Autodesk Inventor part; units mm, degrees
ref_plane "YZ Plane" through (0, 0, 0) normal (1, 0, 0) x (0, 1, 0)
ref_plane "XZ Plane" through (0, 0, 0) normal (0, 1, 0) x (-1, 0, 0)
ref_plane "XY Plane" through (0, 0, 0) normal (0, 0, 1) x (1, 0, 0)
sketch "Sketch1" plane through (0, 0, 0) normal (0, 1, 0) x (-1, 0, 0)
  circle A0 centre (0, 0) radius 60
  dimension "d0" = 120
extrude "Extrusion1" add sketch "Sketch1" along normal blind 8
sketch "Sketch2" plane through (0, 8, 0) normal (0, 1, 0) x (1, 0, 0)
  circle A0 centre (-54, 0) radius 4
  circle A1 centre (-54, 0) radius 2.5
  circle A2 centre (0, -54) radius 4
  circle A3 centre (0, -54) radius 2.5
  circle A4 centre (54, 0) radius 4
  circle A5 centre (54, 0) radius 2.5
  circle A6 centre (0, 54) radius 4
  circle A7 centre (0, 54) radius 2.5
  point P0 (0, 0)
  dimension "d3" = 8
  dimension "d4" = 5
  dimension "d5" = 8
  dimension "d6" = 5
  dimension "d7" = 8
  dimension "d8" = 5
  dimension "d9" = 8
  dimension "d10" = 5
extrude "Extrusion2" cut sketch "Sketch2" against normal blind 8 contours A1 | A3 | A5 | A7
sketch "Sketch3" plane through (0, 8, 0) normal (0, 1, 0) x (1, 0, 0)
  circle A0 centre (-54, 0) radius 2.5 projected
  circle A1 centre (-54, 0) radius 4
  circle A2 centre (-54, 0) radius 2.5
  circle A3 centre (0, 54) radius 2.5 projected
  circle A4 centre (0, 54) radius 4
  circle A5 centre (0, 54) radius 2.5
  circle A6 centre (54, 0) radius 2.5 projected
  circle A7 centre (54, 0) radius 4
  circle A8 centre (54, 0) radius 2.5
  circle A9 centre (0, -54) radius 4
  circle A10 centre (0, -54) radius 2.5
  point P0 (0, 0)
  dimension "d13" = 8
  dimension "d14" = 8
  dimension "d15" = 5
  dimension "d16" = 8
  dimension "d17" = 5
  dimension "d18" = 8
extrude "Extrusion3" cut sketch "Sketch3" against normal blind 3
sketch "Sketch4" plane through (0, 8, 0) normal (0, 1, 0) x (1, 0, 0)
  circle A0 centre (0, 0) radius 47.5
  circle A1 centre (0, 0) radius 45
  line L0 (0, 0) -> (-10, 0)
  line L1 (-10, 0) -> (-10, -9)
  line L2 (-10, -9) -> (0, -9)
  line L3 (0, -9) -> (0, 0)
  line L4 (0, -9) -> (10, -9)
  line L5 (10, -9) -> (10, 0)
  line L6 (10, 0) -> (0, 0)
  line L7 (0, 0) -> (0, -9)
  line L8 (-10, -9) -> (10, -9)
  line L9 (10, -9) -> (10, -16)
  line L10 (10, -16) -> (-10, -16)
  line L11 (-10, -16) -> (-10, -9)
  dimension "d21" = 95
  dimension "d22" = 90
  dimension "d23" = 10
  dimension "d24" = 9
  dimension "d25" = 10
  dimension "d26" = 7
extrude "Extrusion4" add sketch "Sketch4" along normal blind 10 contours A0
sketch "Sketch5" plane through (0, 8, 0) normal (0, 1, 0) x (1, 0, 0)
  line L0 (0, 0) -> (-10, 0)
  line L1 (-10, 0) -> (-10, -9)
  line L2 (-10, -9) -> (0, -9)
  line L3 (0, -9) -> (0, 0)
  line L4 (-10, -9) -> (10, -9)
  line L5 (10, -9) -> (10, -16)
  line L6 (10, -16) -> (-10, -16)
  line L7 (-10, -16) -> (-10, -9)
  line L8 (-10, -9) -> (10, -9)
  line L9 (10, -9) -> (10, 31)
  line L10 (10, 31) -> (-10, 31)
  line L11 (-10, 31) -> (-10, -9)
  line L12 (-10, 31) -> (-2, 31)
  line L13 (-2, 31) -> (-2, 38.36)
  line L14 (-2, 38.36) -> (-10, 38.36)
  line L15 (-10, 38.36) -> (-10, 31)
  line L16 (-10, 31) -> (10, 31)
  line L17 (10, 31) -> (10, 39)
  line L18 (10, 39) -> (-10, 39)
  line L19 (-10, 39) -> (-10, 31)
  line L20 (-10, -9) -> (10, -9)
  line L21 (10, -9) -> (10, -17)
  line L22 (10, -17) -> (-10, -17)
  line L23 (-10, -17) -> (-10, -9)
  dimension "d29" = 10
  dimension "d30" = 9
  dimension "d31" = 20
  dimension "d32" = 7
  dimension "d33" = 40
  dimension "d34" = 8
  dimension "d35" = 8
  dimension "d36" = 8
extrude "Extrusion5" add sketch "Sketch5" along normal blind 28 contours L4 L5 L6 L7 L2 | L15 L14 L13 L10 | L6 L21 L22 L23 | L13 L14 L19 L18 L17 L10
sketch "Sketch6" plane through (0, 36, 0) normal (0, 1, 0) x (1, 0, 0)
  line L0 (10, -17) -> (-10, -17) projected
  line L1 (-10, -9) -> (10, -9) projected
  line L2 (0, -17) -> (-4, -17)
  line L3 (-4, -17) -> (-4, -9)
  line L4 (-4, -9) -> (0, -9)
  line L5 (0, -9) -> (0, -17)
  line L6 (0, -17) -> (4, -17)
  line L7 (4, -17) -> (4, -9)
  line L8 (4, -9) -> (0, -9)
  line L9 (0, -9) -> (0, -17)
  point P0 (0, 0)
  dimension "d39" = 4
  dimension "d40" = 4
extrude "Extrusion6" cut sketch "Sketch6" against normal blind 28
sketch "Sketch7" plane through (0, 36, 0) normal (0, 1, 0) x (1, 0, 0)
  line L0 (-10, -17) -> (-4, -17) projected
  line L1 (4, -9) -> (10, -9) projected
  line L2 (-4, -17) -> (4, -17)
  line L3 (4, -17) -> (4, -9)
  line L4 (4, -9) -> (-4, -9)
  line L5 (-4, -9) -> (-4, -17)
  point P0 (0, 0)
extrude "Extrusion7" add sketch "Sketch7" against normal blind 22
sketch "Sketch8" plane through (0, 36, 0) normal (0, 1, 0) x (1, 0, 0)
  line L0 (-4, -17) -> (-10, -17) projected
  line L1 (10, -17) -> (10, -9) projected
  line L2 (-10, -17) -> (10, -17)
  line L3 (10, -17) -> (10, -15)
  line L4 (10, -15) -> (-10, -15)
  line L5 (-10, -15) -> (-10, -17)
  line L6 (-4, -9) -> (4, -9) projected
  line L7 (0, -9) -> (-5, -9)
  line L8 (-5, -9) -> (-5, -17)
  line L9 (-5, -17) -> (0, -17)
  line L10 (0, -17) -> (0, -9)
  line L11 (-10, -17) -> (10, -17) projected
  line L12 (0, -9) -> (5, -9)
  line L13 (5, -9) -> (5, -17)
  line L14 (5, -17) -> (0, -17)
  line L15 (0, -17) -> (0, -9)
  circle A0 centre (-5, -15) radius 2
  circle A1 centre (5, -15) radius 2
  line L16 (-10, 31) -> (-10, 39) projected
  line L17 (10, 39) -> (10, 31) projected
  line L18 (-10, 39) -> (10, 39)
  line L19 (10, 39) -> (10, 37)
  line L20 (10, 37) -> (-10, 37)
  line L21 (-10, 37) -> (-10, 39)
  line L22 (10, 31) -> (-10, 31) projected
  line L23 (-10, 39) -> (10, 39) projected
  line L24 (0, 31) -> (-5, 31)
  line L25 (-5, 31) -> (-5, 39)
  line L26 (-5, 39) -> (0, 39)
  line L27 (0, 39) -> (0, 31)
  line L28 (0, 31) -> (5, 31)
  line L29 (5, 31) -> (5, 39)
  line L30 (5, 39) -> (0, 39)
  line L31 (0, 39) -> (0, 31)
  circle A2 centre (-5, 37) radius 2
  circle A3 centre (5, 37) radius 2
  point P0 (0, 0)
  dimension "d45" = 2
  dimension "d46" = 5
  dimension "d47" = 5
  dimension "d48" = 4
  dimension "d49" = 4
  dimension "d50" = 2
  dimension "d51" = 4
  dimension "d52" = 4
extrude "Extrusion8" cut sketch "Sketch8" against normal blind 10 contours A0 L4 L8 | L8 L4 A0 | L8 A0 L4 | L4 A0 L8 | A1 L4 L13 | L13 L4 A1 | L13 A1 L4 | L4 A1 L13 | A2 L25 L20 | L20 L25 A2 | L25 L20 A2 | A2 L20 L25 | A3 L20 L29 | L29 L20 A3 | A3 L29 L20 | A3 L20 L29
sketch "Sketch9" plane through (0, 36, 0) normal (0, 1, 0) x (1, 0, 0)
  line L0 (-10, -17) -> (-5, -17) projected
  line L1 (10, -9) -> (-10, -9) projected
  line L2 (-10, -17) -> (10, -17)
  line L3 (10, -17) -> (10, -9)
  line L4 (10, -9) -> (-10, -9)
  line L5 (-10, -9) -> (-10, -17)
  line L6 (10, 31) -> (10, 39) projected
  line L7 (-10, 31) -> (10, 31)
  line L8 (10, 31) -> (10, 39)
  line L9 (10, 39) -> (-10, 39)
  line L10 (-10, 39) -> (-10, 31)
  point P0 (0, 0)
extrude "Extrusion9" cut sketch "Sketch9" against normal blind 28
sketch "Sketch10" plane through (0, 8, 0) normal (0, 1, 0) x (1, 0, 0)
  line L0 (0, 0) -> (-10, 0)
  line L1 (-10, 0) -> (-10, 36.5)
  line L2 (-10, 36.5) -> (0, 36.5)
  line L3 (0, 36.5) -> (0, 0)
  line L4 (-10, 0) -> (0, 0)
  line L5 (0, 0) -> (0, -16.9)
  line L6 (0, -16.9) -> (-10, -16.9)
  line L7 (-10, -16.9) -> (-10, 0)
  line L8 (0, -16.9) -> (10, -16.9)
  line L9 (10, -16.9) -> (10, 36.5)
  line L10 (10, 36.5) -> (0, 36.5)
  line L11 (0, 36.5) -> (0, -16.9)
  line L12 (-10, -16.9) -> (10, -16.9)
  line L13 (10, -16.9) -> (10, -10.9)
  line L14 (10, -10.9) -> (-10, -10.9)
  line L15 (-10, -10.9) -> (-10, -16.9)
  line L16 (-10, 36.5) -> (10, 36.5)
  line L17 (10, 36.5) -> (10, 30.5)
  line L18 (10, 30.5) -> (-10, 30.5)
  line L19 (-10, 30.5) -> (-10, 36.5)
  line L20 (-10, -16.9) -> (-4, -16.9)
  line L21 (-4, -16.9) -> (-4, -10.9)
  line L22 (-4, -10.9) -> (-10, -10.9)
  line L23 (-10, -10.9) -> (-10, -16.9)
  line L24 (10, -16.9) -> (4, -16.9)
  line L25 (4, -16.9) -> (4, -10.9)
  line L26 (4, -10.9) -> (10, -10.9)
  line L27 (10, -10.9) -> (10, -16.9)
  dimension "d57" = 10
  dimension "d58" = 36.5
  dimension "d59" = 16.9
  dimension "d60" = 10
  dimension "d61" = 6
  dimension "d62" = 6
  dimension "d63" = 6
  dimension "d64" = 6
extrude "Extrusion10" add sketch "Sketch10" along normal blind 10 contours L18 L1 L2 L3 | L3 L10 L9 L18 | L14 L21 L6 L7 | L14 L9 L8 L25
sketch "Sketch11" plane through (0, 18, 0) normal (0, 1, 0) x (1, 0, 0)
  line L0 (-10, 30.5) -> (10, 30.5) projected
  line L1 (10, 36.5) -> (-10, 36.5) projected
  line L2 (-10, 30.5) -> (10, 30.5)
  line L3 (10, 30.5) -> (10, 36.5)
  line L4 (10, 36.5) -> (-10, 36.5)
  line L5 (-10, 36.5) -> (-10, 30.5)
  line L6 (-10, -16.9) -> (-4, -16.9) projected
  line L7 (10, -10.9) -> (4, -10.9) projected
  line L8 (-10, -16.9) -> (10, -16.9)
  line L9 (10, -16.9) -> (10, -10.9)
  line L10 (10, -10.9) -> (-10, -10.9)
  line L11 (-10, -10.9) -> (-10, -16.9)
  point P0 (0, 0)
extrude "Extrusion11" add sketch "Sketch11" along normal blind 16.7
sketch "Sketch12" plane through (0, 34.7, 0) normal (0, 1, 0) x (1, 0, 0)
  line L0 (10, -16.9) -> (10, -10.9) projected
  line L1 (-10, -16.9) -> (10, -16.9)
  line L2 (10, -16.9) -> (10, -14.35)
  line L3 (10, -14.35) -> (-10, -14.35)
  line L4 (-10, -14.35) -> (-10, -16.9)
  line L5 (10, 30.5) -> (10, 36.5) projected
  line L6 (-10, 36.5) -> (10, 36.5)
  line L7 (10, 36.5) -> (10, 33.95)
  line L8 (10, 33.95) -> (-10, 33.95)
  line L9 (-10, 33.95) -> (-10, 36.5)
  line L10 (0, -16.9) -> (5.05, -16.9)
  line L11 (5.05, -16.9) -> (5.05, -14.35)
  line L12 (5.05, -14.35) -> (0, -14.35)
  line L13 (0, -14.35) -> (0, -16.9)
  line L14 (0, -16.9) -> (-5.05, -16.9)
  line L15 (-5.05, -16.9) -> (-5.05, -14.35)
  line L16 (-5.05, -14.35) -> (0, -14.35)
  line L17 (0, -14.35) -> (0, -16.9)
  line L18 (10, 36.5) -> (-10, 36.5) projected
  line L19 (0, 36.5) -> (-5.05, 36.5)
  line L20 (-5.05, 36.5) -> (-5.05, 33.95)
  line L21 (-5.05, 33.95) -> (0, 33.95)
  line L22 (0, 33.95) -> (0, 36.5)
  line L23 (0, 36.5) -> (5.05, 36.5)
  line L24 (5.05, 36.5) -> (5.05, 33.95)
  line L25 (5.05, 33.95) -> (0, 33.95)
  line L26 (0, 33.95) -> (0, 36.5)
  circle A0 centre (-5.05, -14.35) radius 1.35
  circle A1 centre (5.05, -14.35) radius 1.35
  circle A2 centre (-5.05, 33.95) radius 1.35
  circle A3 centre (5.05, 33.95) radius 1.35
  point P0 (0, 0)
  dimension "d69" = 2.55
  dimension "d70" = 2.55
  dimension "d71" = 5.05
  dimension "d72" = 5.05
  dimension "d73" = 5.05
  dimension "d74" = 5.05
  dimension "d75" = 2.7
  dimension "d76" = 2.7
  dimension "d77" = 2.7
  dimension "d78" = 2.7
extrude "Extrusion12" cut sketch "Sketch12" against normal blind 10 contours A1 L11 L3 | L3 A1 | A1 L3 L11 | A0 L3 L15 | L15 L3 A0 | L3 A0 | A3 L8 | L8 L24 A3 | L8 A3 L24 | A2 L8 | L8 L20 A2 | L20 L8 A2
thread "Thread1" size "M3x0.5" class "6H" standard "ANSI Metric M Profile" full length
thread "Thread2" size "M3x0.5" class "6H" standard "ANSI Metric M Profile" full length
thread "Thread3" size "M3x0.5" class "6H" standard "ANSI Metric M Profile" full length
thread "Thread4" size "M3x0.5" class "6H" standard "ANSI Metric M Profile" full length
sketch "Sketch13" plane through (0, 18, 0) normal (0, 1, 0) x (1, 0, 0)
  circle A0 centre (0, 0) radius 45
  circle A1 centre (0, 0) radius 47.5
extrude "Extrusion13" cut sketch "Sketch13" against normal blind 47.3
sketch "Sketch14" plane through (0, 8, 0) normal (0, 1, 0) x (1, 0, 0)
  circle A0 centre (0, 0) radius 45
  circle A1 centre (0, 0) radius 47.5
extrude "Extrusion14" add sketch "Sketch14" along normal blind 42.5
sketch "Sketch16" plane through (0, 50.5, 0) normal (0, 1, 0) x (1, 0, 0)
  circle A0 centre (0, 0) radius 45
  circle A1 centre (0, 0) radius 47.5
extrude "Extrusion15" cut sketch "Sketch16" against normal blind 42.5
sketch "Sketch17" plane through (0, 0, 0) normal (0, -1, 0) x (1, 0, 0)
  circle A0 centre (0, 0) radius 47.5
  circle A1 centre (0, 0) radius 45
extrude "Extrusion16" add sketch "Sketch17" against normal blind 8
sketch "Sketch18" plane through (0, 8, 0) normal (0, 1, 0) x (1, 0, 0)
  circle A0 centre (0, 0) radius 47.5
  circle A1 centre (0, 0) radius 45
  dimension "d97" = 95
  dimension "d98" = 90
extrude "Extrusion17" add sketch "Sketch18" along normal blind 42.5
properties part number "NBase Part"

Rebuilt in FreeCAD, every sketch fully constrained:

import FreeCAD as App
import Part
import Sketcher
Q = App.Units.Quantity

doc = App.newDocument("Part")
params = doc.addObject("Spreadsheet::Sheet", "Params")
for row, (alias, value) in enumerate([
    ("sketch1_diameter", "120 mm"),
    ("pad1_length", "8 mm"),
    ("sketch2_diameter", "5 mm"),
    ("pocket1_length", "8 mm"),
    ("sketch3_diameter", "8 mm"),
    ("sketch3_diameter2", "5 mm"),
    ("pocket2_length", "3 mm"),
    ("sketch4_diameter", "95 mm"),
    ("sketch4_diameter2", "90 mm"),
    ("pad2_length", "10 mm"),
    ("sketch5_width", "20 mm"),
    ("sketch5_height", "8 mm"),
    ("pad3_length", "28 mm"),
    ("pocket3_length", "28 mm"),
    ("sketch7_width", "8 mm"),
    ("pad4_length", "22 mm"),
    ("sketch8_diameter", "4 mm"),
    ("pocket4_length", "10 mm"),
    ("sketch9_width", "20 mm"),
    ("sketch9_height", "8 mm"),
    ("pocket5_length", "28 mm"),
    ("sketch10_width", "6 mm"),
    ("pad5_length", "10 mm"),
    ("sketch11_width", "20 mm"),
    ("sketch11_height", "6 mm"),
    ("pad6_length", "16.7 mm"),
    ("sketch12_diameter", "2.7 mm"),
    ("pocket6_length", "10 mm"),
    ("sketch13_diameter", "95 mm"),
    ("sketch13_diameter2", "90 mm"),
    ("pocket7_length", "47.3 mm"),
    ("sketch14_diameter", "95 mm"),
    ("sketch14_diameter2", "90 mm"),
    ("pad7_length", "42.5 mm"),
    ("sketch15_diameter", "95 mm"),
    ("sketch15_diameter2", "90 mm"),
    ("pocket8_length", "42.5 mm"),
    ("sketch16_diameter", "95 mm"),
    ("sketch16_diameter2", "90 mm"),
    ("pad8_length", "8 mm"),
    ("sketch17_diameter", "95 mm"),
    ("sketch17_diameter2", "90 mm"),
    ("pad9_length", "42.5 mm"),
], start=1):
    params.set(f"A{row}", alias)
    params.set(f"B{row}", "=" + value)
    params.setAlias(f"B{row}", alias)

body = doc.addObject("PartDesign::Body", "Body")
body.AllowCompound = True

sketch1 = body.newObject("Sketcher::SketchObject", "Sketch")
sketch1.AttachmentSupport = (doc.getObject("XZ_Plane"), [""])
sketch1.MapMode = "FlatFace"
sketch1.addGeometry(Part.Circle(App.Vector(0, 0, 0), App.Vector(0, 0, 1), 60), False)
sketch1.addConstraint(Sketcher.Constraint("Coincident", 0, 3, -1, 1))
sketch1.addConstraint(Sketcher.Constraint("Diameter", 0, Q("120 mm")))
sketch1.setExpression("Constraints[1]", "Params.sketch1_diameter")
pad1 = body.newObject("PartDesign::Pad", "Pad")
pad1.Profile = sketch1
pad1.setExpression("Length", "Params.pad1_length")
pad1.Reversed = True

sketch2 = body.newObject("Sketcher::SketchObject", "Sketch001")
sketch2.AttachmentSupport = (doc.getObject("XZ_Plane"), [""])
sketch2.MapMode = "FlatFace"
sketch2.AttachmentOffset = App.Placement(App.Vector(0, 0, -8), App.Rotation())
sketch2.addGeometry(Part.Circle(App.Vector(-54, 0, 0), App.Vector(0, 0, 1), 2.5), False)
sketch2.addGeometry(Part.Circle(App.Vector(0, 54, 0), App.Vector(0, 0, 1), 2.5), False)
sketch2.addGeometry(Part.Circle(App.Vector(54, 0, 0), App.Vector(0, 0, 1), 2.5), False)
sketch2.addGeometry(Part.Circle(App.Vector(0, -54, 0), App.Vector(0, 0, 1), 2.5), False)
sketch2.addConstraint(Sketcher.Constraint("Equal", 0, 1))
sketch2.addConstraint(Sketcher.Constraint("Equal", 1, 2))
sketch2.addConstraint(Sketcher.Constraint("Equal", 2, 3))
sketch2.addConstraint(Sketcher.Constraint("Symmetric", 0, 3, 2, 3, -1, 1))
sketch2.addConstraint(Sketcher.Constraint("Symmetric", 1, 3, 3, 3, -1, 1))
sketch2.addConstraint(Sketcher.Constraint("PointOnObject", 0, 3, -1))
sketch2.addConstraint(Sketcher.Constraint("PointOnObject", 1, 3, -2))
sketch2.addConstraint(Sketcher.Constraint("Diameter", 0, Q("5 mm")))
sketch2.addConstraint(Sketcher.Constraint("DistanceX", 0, 3, -1, 1, Q("54 mm")))
sketch2.addConstraint(Sketcher.Constraint("DistanceY", -1, 1, 1, 3, Q("54 mm")))
sketch2.setExpression("Constraints[7]", "Params.sketch2_diameter")
pocket1 = body.newObject("PartDesign::Pocket", "Pocket")
pocket1.Profile = sketch2
pocket1.setExpression("Length", "Params.pocket1_length")
pocket1.Reversed = True

sketch3 = body.newObject("Sketcher::SketchObject", "Sketch002")
sketch3.AttachmentSupport = (doc.getObject("XZ_Plane"), [""])
sketch3.MapMode = "FlatFace"
sketch3.AttachmentOffset = App.Placement(App.Vector(0, 0, -8), App.Rotation())
sketch3.addGeometry(Part.Circle(App.Vector(-54, 0, 0), App.Vector(0, 0, 1), 4), False)
sketch3.addGeometry(Part.Circle(App.Vector(-54, 0, 0), App.Vector(0, 0, 1), 2.5), False)
sketch3.addGeometry(Part.Circle(App.Vector(0, -54, 0), App.Vector(0, 0, 1), 4), False)
sketch3.addGeometry(Part.Circle(App.Vector(0, -54, 0), App.Vector(0, 0, 1), 2.5), False)
sketch3.addGeometry(Part.Circle(App.Vector(54, 0, 0), App.Vector(0, 0, 1), 4), False)
sketch3.addGeometry(Part.Circle(App.Vector(54, 0, 0), App.Vector(0, 0, 1), 2.5), False)
sketch3.addGeometry(Part.Circle(App.Vector(0, 54, 0), App.Vector(0, 0, 1), 4), False)
sketch3.addGeometry(Part.Circle(App.Vector(0, 54, 0), App.Vector(0, 0, 1), 2.5), False)
sketch3.addConstraint(Sketcher.Constraint("Coincident", 1, 3, 0, 3))
sketch3.addConstraint(Sketcher.Constraint("Coincident", 3, 3, 2, 3))
sketch3.addConstraint(Sketcher.Constraint("Coincident", 5, 3, 4, 3))
sketch3.addConstraint(Sketcher.Constraint("Coincident", 7, 3, 6, 3))
sketch3.addConstraint(Sketcher.Constraint("Equal", 0, 2))
sketch3.addConstraint(Sketcher.Constraint("Equal", 1, 3))
sketch3.addConstraint(Sketcher.Constraint("Equal", 2, 4))
sketch3.addConstraint(Sketcher.Constraint("Equal", 3, 5))
sketch3.addConstraint(Sketcher.Constraint("Equal", 4, 6))
sketch3.addConstraint(Sketcher.Constraint("Equal", 5, 7))
sketch3.addConstraint(Sketcher.Constraint("Symmetric", 0, 3, 4, 3, -1, 1))
sketch3.addConstraint(Sketcher.Constraint("Symmetric", 2, 3, 6, 3, -1, 1))
sketch3.addConstraint(Sketcher.Constraint("PointOnObject", 0, 3, -1))
sketch3.addConstraint(Sketcher.Constraint("PointOnObject", 2, 3, -2))
sketch3.addConstraint(Sketcher.Constraint("Diameter", 0, Q("8 mm")))
sketch3.addConstraint(Sketcher.Constraint("Diameter", 1, Q("5 mm")))
sketch3.addConstraint(Sketcher.Constraint("DistanceX", 0, 3, -1, 1, Q("54 mm")))
sketch3.addConstraint(Sketcher.Constraint("DistanceY", 2, 3, -1, 1, Q("54 mm")))
sketch3.setExpression("Constraints[14]", "Params.sketch3_diameter")
sketch3.setExpression("Constraints[15]", "Params.sketch3_diameter2")
pocket2 = body.newObject("PartDesign::Pocket", "Pocket001")
pocket2.Profile = sketch3
pocket2.setExpression("Length", "Params.pocket2_length")
pocket2.Reversed = True

sketch4 = body.newObject("Sketcher::SketchObject", "Sketch003")
sketch4.AttachmentSupport = (doc.getObject("XZ_Plane"), [""])
sketch4.MapMode = "FlatFace"
sketch4.AttachmentOffset = App.Placement(App.Vector(0, 0, -8), App.Rotation())
sketch4.addGeometry(Part.Circle(App.Vector(0, 0, 0), App.Vector(0, 0, 1), 47.5), False)
sketch4.addGeometry(Part.Circle(App.Vector(0, 0, 0), App.Vector(0, 0, 1), 45), False)
sketch4.addConstraint(Sketcher.Constraint("Coincident", 0, 3, -1, 1))
sketch4.addConstraint(Sketcher.Constraint("Coincident", 1, 3, -1, 1))
sketch4.addConstraint(Sketcher.Constraint("Diameter", 0, Q("95 mm")))
sketch4.addConstraint(Sketcher.Constraint("Diameter", 1, Q("90 mm")))
sketch4.setExpression("Constraints[2]", "Params.sketch4_diameter")
sketch4.setExpression("Constraints[3]", "Params.sketch4_diameter2")
pad2 = body.newObject("PartDesign::Pad", "Pad001")
pad2.Profile = sketch4
pad2.setExpression("Length", "Params.pad2_length")
pad2.Reversed = True

sketch5 = body.newObject("Sketcher::SketchObject", "Sketch004")
sketch5.AttachmentSupport = (doc.getObject("XZ_Plane"), [""])
sketch5.MapMode = "FlatFace"
sketch5.AttachmentOffset = App.Placement(App.Vector(0, 0, -8), App.Rotation())
sketch5.addGeometry(Part.LineSegment(App.Vector(10, 9, 0), App.Vector(-10, 9, 0)), False)
sketch5.addGeometry(Part.LineSegment(App.Vector(-10, 9, 0), App.Vector(-10, 17, 0)), False)
sketch5.addGeometry(Part.LineSegment(App.Vector(-10, 17, 0), App.Vector(10, 17, 0)), False)
sketch5.addGeometry(Part.LineSegment(App.Vector(10, 17, 0), App.Vector(10, 9, 0)), False)
sketch5.addGeometry(Part.LineSegment(App.Vector(-10, -31, 0), App.Vector(10, -31, 0)), False)
sketch5.addGeometry(Part.LineSegment(App.Vector(10, -31, 0), App.Vector(10, -39, 0)), False)
sketch5.addGeometry(Part.LineSegment(App.Vector(10, -39, 0), App.Vector(-10, -39, 0)), False)
sketch5.addGeometry(Part.LineSegment(App.Vector(-10, -39, 0), App.Vector(-10, -31, 0)), False)
sketch5.addConstraint(Sketcher.Constraint("Coincident", 0, 2, 1, 1))
sketch5.addConstraint(Sketcher.Constraint("Coincident", 1, 2, 2, 1))
sketch5.addConstraint(Sketcher.Constraint("Coincident", 2, 2, 3, 1))
sketch5.addConstraint(Sketcher.Constraint("Coincident", 3, 2, 0, 1))
sketch5.addConstraint(Sketcher.Constraint("Coincident", 4, 2, 5, 1))
sketch5.addConstraint(Sketcher.Constraint("Coincident", 5, 2, 6, 1))
sketch5.addConstraint(Sketcher.Constraint("Coincident", 6, 2, 7, 1))
sketch5.addConstraint(Sketcher.Constraint("Coincident", 7, 2, 4, 1))
sketch5.addConstraint(Sketcher.Constraint("Horizontal", 0))
sketch5.addConstraint(Sketcher.Constraint("Vertical", 1))
sketch5.addConstraint(Sketcher.Constraint("Horizontal", 2))
sketch5.addConstraint(Sketcher.Constraint("Vertical", 3))
sketch5.addConstraint(Sketcher.Constraint("Horizontal", 4))
sketch5.addConstraint(Sketcher.Constraint("Vertical", 5))
sketch5.addConstraint(Sketcher.Constraint("Horizontal", 6))
sketch5.addConstraint(Sketcher.Constraint("Vertical", 7))
sketch5.addConstraint(Sketcher.Constraint("Vertical", 3, 2, 4, 2))
sketch5.addConstraint(Sketcher.Constraint("Vertical", 1, 2, 6, 2))
sketch5.addConstraint(Sketcher.Constraint("Equal", 3, 5))
sketch5.addConstraint(Sketcher.Constraint("DistanceX", 0, 2, 0, 1, Q("20 mm")))
sketch5.addConstraint(Sketcher.Constraint("DistanceY", 1, 1, 1, 2, Q("8 mm")))
sketch5.addConstraint(Sketcher.Constraint("DistanceX", 0, 2, -1, 1, Q("10 mm")))
sketch5.addConstraint(Sketcher.Constraint("DistanceY", -1, 1, 0, 2, Q("9 mm")))
sketch5.addConstraint(Sketcher.Constraint("DistanceY", 4, 2, 3, 2, Q("40 mm")))
sketch5.setExpression("Constraints[19]", "Params.sketch5_width")
sketch5.setExpression("Constraints[20]", "Params.sketch5_height")
pad3 = body.newObject("PartDesign::Pad", "Pad002")
pad3.Profile = sketch5
pad3.setExpression("Length", "Params.pad3_length")
pad3.Reversed = True

sketch6 = body.newObject("Sketcher::SketchObject", "Sketch005")
sketch6.AttachmentSupport = (doc.getObject("XZ_Plane"), [""])
sketch6.MapMode = "FlatFace"
sketch6.AttachmentOffset = App.Placement(App.Vector(0, 0, -36), App.Rotation())
sketch6.addGeometry(Part.LineSegment(App.Vector(4, 17, 0), App.Vector(4, 9, 0)), False)
sketch6.addGeometry(Part.LineSegment(App.Vector(4, 9, 0), App.Vector(-4, 9, 0)), False)
sketch6.addGeometry(Part.LineSegment(App.Vector(-4, 9, 0), App.Vector(-4, 17, 0)), False)
sketch6.addGeometry(Part.LineSegment(App.Vector(-4, 17, 0), App.Vector(4, 17, 0)), False)
sketch6.addConstraint(Sketcher.Constraint("Coincident", 0, 2, 1, 1))
sketch6.addConstraint(Sketcher.Constraint("Coincident", 1, 2, 2, 1))
sketch6.addConstraint(Sketcher.Constraint("Coincident", 2, 2, 3, 1))
sketch6.addConstraint(Sketcher.Constraint("Coincident", 3, 2, 0, 1))
sketch6.addConstraint(Sketcher.Constraint("Vertical", 0))
sketch6.addConstraint(Sketcher.Constraint("Horizontal", 1))
sketch6.addConstraint(Sketcher.Constraint("Vertical", 2))
sketch6.addConstraint(Sketcher.Constraint("Horizontal", 3))
sketch6.addConstraint(Sketcher.Constraint("Equal", 3, 0))
sketch6.addConstraint(Sketcher.Constraint("DistanceX", -1, 1, 0, 2, Q("4 mm")))
sketch6.addConstraint(Sketcher.Constraint("DistanceX", 1, 2, -1, 1, Q("4 mm")))
sketch6.addConstraint(Sketcher.Constraint("DistanceY", -1, 1, 0, 2, Q("9 mm")))
pocket3 = body.newObject("PartDesign::Pocket", "Pocket002")
pocket3.Profile = sketch6
pocket3.setExpression("Length", "Params.pocket3_length")
pocket3.Reversed = True

sketch7 = body.newObject("Sketcher::SketchObject", "Sketch006")
sketch7.AttachmentSupport = (doc.getObject("XZ_Plane"), [""])
sketch7.MapMode = "FlatFace"
sketch7.AttachmentOffset = App.Placement(App.Vector(0, 0, -36), App.Rotation())
sketch7.addGeometry(Part.LineSegment(App.Vector(-4, 9, 0), App.Vector(-4, 17, 0)), False)
sketch7.addGeometry(Part.LineSegment(App.Vector(-4, 17, 0), App.Vector(4, 17, 0)), False)
sketch7.addGeometry(Part.LineSegment(App.Vector(4, 17, 0), App.Vector(4, 9, 0)), False)
sketch7.addGeometry(Part.LineSegment(App.Vector(4, 9, 0), App.Vector(-4, 9, 0)), False)
sketch7.addConstraint(Sketcher.Constraint("Coincident", 0, 2, 1, 1))
sketch7.addConstraint(Sketcher.Constraint("Coincident", 1, 2, 2, 1))
sketch7.addConstraint(Sketcher.Constraint("Coincident", 2, 2, 3, 1))
sketch7.addConstraint(Sketcher.Constraint("Coincident", 3, 2, 0, 1))
sketch7.addConstraint(Sketcher.Constraint("Vertical", 0))
sketch7.addConstraint(Sketcher.Constraint("Horizontal", 1))
sketch7.addConstraint(Sketcher.Constraint("Vertical", 2))
sketch7.addConstraint(Sketcher.Constraint("Horizontal", 3))
sketch7.addConstraint(Sketcher.Constraint("Equal", 3, 0))
sketch7.addConstraint(Sketcher.Constraint("DistanceX", 1, 1, 1, 2, Q("8 mm")))
sketch7.addConstraint(Sketcher.Constraint("DistanceX", 0, 2, -1, 1, Q("4 mm")))
sketch7.addConstraint(Sketcher.Constraint("DistanceY", -1, 1, 0, 2, Q("17 mm")))
sketch7.setExpression("Constraints[9]", "Params.sketch7_width")
pad4 = body.newObject("PartDesign::Pad", "Pad003")
pad4.Profile = sketch7
pad4.setExpression("Length", "Params.pad4_length")

sketch8 = body.newObject("Sketcher::SketchObject", "Sketch007")
sketch8.AttachmentSupport = (doc.getObject("XZ_Plane"), [""])
sketch8.MapMode = "FlatFace"
sketch8.AttachmentOffset = App.Placement(App.Vector(0, 0, -36), App.Rotation())
sketch8.addGeometry(Part.Circle(App.Vector(-5, 15, 0), App.Vector(0, 0, 1), 2), False)
sketch8.addGeometry(Part.Circle(App.Vector(5, 15, 0), App.Vector(0, 0, 1), 2), False)
sketch8.addGeometry(Part.Circle(App.Vector(-5, -37, 0), App.Vector(0, 0, 1), 2), False)
sketch8.addGeometry(Part.Circle(App.Vector(5, -37, 0), App.Vector(0, 0, 1), 2), False)
sketch8.addConstraint(Sketcher.Constraint("Equal", 0, 1))
sketch8.addConstraint(Sketcher.Constraint("Equal", 1, 2))
sketch8.addConstraint(Sketcher.Constraint("Equal", 2, 3))
sketch8.addConstraint(Sketcher.Constraint("Symmetric", 0, 3, 1, 3, -2))
sketch8.addConstraint(Sketcher.Constraint("Symmetric", 2, 3, 3, 3, -2))
sketch8.addConstraint(Sketcher.Constraint("Vertical", 0, 3, 2, 3))
sketch8.addConstraint(Sketcher.Constraint("Diameter", 0, Q("4 mm")))
sketch8.addConstraint(Sketcher.Constraint("DistanceX", 0, 3, -1, 1, Q("5 mm")))
sketch8.addConstraint(Sketcher.Constraint("DistanceY", -1, 1, 0, 3, Q("15 mm")))
sketch8.addConstraint(Sketcher.Constraint("DistanceY", 2, 3, -1, 1, Q("37 mm")))
sketch8.setExpression("Constraints[6]", "Params.sketch8_diameter")
pocket4 = body.newObject("PartDesign::Pocket", "Pocket003")
pocket4.Profile = sketch8
pocket4.setExpression("Length", "Params.pocket4_length")
pocket4.Reversed = True

sketch9 = body.newObject("Sketcher::SketchObject", "Sketch008")
sketch9.AttachmentSupport = (doc.getObject("XZ_Plane"), [""])
sketch9.MapMode = "FlatFace"
sketch9.AttachmentOffset = App.Placement(App.Vector(0, 0, -36), App.Rotation())
sketch9.addGeometry(Part.LineSegment(App.Vector(-10, 9, 0), App.Vector(-10, 17, 0)), False)
sketch9.addGeometry(Part.LineSegment(App.Vector(-10, 17, 0), App.Vector(10, 17, 0)), False)
sketch9.addGeometry(Part.LineSegment(App.Vector(10, 17, 0), App.Vector(10, 9, 0)), False)
sketch9.addGeometry(Part.LineSegment(App.Vector(10, 9, 0), App.Vector(-10, 9, 0)), False)
sketch9.addGeometry(Part.LineSegment(App.Vector(-10, -31, 0), App.Vector(10, -31, 0)), False)
sketch9.addGeometry(Part.LineSegment(App.Vector(10, -31, 0), App.Vector(10, -39, 0)), False)
sketch9.addGeometry(Part.LineSegment(App.Vector(10, -39, 0), App.Vector(-10, -39, 0)), False)
sketch9.addGeometry(Part.LineSegment(App.Vector(-10, -39, 0), App.Vector(-10, -31, 0)), False)
sketch9.addConstraint(Sketcher.Constraint("Coincident", 0, 2, 1, 1))
sketch9.addConstraint(Sketcher.Constraint("Coincident", 1, 2, 2, 1))
sketch9.addConstraint(Sketcher.Constraint("Coincident", 2, 2, 3, 1))
sketch9.addConstraint(Sketcher.Constraint("Coincident", 3, 2, 0, 1))
sketch9.addConstraint(Sketcher.Constraint("Coincident", 4, 2, 5, 1))
sketch9.addConstraint(Sketcher.Constraint("Coincident", 5, 2, 6, 1))
sketch9.addConstraint(Sketcher.Constraint("Coincident", 6, 2, 7, 1))
sketch9.addConstraint(Sketcher.Constraint("Coincident", 7, 2, 4, 1))
sketch9.addConstraint(Sketcher.Constraint("Vertical", 0))
sketch9.addConstraint(Sketcher.Constraint("Horizontal", 1))
sketch9.addConstraint(Sketcher.Constraint("Vertical", 2))
sketch9.addConstraint(Sketcher.Constraint("Horizontal", 3))
sketch9.addConstraint(Sketcher.Constraint("Horizontal", 4))
sketch9.addConstraint(Sketcher.Constraint("Vertical", 5))
sketch9.addConstraint(Sketcher.Constraint("Horizontal", 6))
sketch9.addConstraint(Sketcher.Constraint("Vertical", 7))
sketch9.addConstraint(Sketcher.Constraint("Vertical", 2, 2, 4, 2))
sketch9.addConstraint(Sketcher.Constraint("Vertical", 3, 2, 6, 2))
sketch9.addConstraint(Sketcher.Constraint("Equal", 2, 5))
sketch9.addConstraint(Sketcher.Constraint("DistanceX", 1, 1, 1, 2, Q("20 mm")))
sketch9.addConstraint(Sketcher.Constraint("DistanceY", 0, 1, 0, 2, Q("8 mm")))
sketch9.addConstraint(Sketcher.Constraint("DistanceX", 0, 2, -1, 1, Q("10 mm")))
sketch9.addConstraint(Sketcher.Constraint("DistanceY", -1, 1, 0, 2, Q("17 mm")))
sketch9.addConstraint(Sketcher.Constraint("DistanceY", 4, 2, -1, 1, Q("31 mm")))
sketch9.setExpression("Constraints[19]", "Params.sketch9_width")
sketch9.setExpression("Constraints[20]", "Params.sketch9_height")
pocket5 = body.newObject("PartDesign::Pocket", "Pocket004")
pocket5.Profile = sketch9
pocket5.setExpression("Length", "Params.pocket5_length")
pocket5.Reversed = True

sketch10 = body.newObject("Sketcher::SketchObject", "Sketch009")
sketch10.AttachmentSupport = (doc.getObject("XZ_Plane"), [""])
sketch10.MapMode = "FlatFace"
sketch10.AttachmentOffset = App.Placement(App.Vector(0, 0, -8), App.Rotation())
sketch10.addGeometry(Part.LineSegment(App.Vector(-10, -30.5, 0), App.Vector(10, -30.5, 0)), False)
sketch10.addGeometry(Part.LineSegment(App.Vector(10, -30.5, 0), App.Vector(10, -36.5, 0)), False)
sketch10.addGeometry(Part.LineSegment(App.Vector(10, -36.5, 0), App.Vector(-10, -36.5, 0)), False)
sketch10.addGeometry(Part.LineSegment(App.Vector(-10, -36.5, 0), App.Vector(-10, -30.5, 0)), False)
sketch10.addGeometry(Part.LineSegment(App.Vector(-4, 10.9, 0), App.Vector(-10, 10.9, 0)), False)
sketch10.addGeometry(Part.LineSegment(App.Vector(-10, 10.9, 0), App.Vector(-10, 16.9, 0)), False)
sketch10.addGeometry(Part.LineSegment(App.Vector(-10, 16.9, 0), App.Vector(-4, 16.9, 0)), False)
sketch10.addGeometry(Part.LineSegment(App.Vector(-4, 16.9, 0), App.Vector(-4, 10.9, 0)), False)
sketch10.addGeometry(Part.LineSegment(App.Vector(10, 10.9, 0), App.Vector(4, 10.9, 0)), False)
sketch10.addGeometry(Part.LineSegment(App.Vector(4, 10.9, 0), App.Vector(4, 16.9, 0)), False)
sketch10.addGeometry(Part.LineSegment(App.Vector(4, 16.9, 0), App.Vector(10, 16.9, 0)), False)
sketch10.addGeometry(Part.LineSegment(App.Vector(10, 16.9, 0), App.Vector(10, 10.9, 0)), False)
sketch10.addConstraint(Sketcher.Constraint("Coincident", 0, 2, 1, 1))
sketch10.addConstraint(Sketcher.Constraint("Coincident", 1, 2, 2, 1))
sketch10.addConstraint(Sketcher.Constraint("Coincident", 2, 2, 3, 1))
sketch10.addConstraint(Sketcher.Constraint("Coincident", 3, 2, 0, 1))
sketch10.addConstraint(Sketcher.Constraint("Coincident", 4, 2, 5, 1))
sketch10.addConstraint(Sketcher.Constraint("Coincident", 5, 2, 6, 1))
sketch10.addConstraint(Sketcher.Constraint("Coincident", 6, 2, 7, 1))
sketch10.addConstraint(Sketcher.Constraint("Coincident", 7, 2, 4, 1))
sketch10.addConstraint(Sketcher.Constraint("Coincident", 8, 2, 9, 1))
sketch10.addConstraint(Sketcher.Constraint("Coincident", 9, 2, 10, 1))
sketch10.addConstraint(Sketcher.Constraint("Coincident", 10, 2, 11, 1))
sketch10.addConstraint(Sketcher.Constraint("Coincident", 11, 2, 8, 1))
sketch10.addConstraint(Sketcher.Constraint("Horizontal", 0))
sketch10.addConstraint(Sketcher.Constraint("Vertical", 1))
sketch10.addConstraint(Sketcher.Constraint("Horizontal", 2))
sketch10.addConstraint(Sketcher.Constraint("Vertical", 3))
sketch10.addConstraint(Sketcher.Constraint("Horizontal", 4))
sketch10.addConstraint(Sketcher.Constraint("Vertical", 5))
sketch10.addConstraint(Sketcher.Constraint("Horizontal", 6))
sketch10.addConstraint(Sketcher.Constraint("Vertical", 7))
sketch10.addConstraint(Sketcher.Constraint("Horizontal", 8))
sketch10.addConstraint(Sketcher.Constraint("Vertical", 9))
sketch10.addConstraint(Sketcher.Constraint("Horizontal", 10))
sketch10.addConstraint(Sketcher.Constraint("Vertical", 11))
sketch10.addConstraint(Sketcher.Constraint("Symmetric", 7, 2, 8, 2, -2))
sketch10.addConstraint(Sketcher.Constraint("Symmetric", 5, 2, 10, 2, -2))
sketch10.addConstraint(Sketcher.Constraint("Vertical", 3, 2, 4, 2))
sketch10.addConstraint(Sketcher.Constraint("Vertical", 1, 2, 10, 2))
sketch10.addConstraint(Sketcher.Constraint("Equal", 10, 1))
sketch10.addConstraint(Sketcher.Constraint("Equal", 3, 5))
sketch10.addConstraint(Sketcher.Constraint("DistanceX", 4, 2, 4, 1, Q("6 mm")))
sketch10.addConstraint(Sketcher.Constraint("DistanceX", -1, 1, 0, 2, Q("10 mm")))
sketch10.addConstraint(Sketcher.Constraint("DistanceY", 1, 2, -1, 1, Q("36.5 mm")))
sketch10.addConstraint(Sketcher.Constraint("DistanceY", -1, 1, 5, 2, Q("16.9 mm")))
sketch10.setExpression("Constraints[30]", "Params.sketch10_width")
pad5 = body.newObject("PartDesign::Pad", "Pad004")
pad5.Profile = sketch10
pad5.setExpression("Length", "Params.pad5_length")
pad5.Reversed = True

sketch11 = body.newObject("Sketcher::SketchObject", "Sketch010")
sketch11.AttachmentSupport = (doc.getObject("XZ_Plane"), [""])
sketch11.MapMode = "FlatFace"
sketch11.AttachmentOffset = App.Placement(App.Vector(0, 0, -18), App.Rotation())
sketch11.addGeometry(Part.LineSegment(App.Vector(-10, -36.5, 0), App.Vector(-10, -30.5, 0)), False)
sketch11.addGeometry(Part.LineSegment(App.Vector(-10, -30.5, 0), App.Vector(10, -30.5, 0)), False)
sketch11.addGeometry(Part.LineSegment(App.Vector(10, -30.5, 0), App.Vector(10, -36.5, 0)), False)
sketch11.addGeometry(Part.LineSegment(App.Vector(10, -36.5, 0), App.Vector(-10, -36.5, 0)), False)
sketch11.addGeometry(Part.LineSegment(App.Vector(-10, 10.9, 0), App.Vector(-10, 16.9, 0)), False)
sketch11.addGeometry(Part.LineSegment(App.Vector(-10, 16.9, 0), App.Vector(10, 16.9, 0)), False)
sketch11.addGeometry(Part.LineSegment(App.Vector(10, 16.9, 0), App.Vector(10, 10.9, 0)), False)
sketch11.addGeometry(Part.LineSegment(App.Vector(10, 10.9, 0), App.Vector(-10, 10.9, 0)), False)
sketch11.addConstraint(Sketcher.Constraint("Coincident", 0, 2, 1, 1))
sketch11.addConstraint(Sketcher.Constraint("Coincident", 1, 2, 2, 1))
sketch11.addConstraint(Sketcher.Constraint("Coincident", 2, 2, 3, 1))
sketch11.addConstraint(Sketcher.Constraint("Coincident", 3, 2, 0, 1))
sketch11.addConstraint(Sketcher.Constraint("Coincident", 4, 2, 5, 1))
sketch11.addConstraint(Sketcher.Constraint("Coincident", 5, 2, 6, 1))
sketch11.addConstraint(Sketcher.Constraint("Coincident", 6, 2, 7, 1))
sketch11.addConstraint(Sketcher.Constraint("Coincident", 7, 2, 4, 1))
sketch11.addConstraint(Sketcher.Constraint("Vertical", 0))
sketch11.addConstraint(Sketcher.Constraint("Horizontal", 1))
sketch11.addConstraint(Sketcher.Constraint("Vertical", 2))
sketch11.addConstraint(Sketcher.Constraint("Horizontal", 3))
sketch11.addConstraint(Sketcher.Constraint("Vertical", 4))
sketch11.addConstraint(Sketcher.Constraint("Horizontal", 5))
sketch11.addConstraint(Sketcher.Constraint("Vertical", 6))
sketch11.addConstraint(Sketcher.Constraint("Horizontal", 7))
sketch11.addConstraint(Sketcher.Constraint("Vertical", 3, 2, 4, 2))
sketch11.addConstraint(Sketcher.Constraint("Vertical", 2, 2, 5, 2))
sketch11.addConstraint(Sketcher.Constraint("Equal", 2, 4))
sketch11.addConstraint(Sketcher.Constraint("DistanceX", 1, 1, 1, 2, Q("20 mm")))
sketch11.addConstraint(Sketcher.Constraint("DistanceY", 0, 1, 0, 2, Q("6 mm")))
sketch11.addConstraint(Sketcher.Constraint("DistanceX", 0, 2, -1, 1, Q("10 mm")))
sketch11.addConstraint(Sketcher.Constraint("DistanceY", 0, 2, -1, 1, Q("30.5 mm")))
sketch11.addConstraint(Sketcher.Constraint("DistanceY", -1, 1, 4, 2, Q("16.9 mm")))
sketch11.setExpression("Constraints[19]", "Params.sketch11_width")
sketch11.setExpression("Constraints[20]", "Params.sketch11_height")
pad6 = body.newObject("PartDesign::Pad", "Pad005")
pad6.Profile = sketch11
pad6.setExpression("Length", "Params.pad6_length")
pad6.Reversed = True

sketch12 = body.newObject("Sketcher::SketchObject", "Sketch011")
sketch12.AttachmentSupport = (doc.getObject("XZ_Plane"), [""])
sketch12.MapMode = "FlatFace"
sketch12.AttachmentOffset = App.Placement(App.Vector(0, 0, -34.7), App.Rotation())
sketch12.addGeometry(Part.Circle(App.Vector(5.05, 14.35, 0), App.Vector(0, 0, 1), 1.35), False)
sketch12.addGeometry(Part.Circle(App.Vector(-5.05, 14.35, 0), App.Vector(0, 0, 1), 1.35), False)
sketch12.addGeometry(Part.Circle(App.Vector(5.05, -33.95, 0), App.Vector(0, 0, 1), 1.35), False)
sketch12.addGeometry(Part.Circle(App.Vector(-5.05, -33.95, 0), App.Vector(0, 0, 1), 1.35), False)
sketch12.addConstraint(Sketcher.Constraint("Equal", 0, 1))
sketch12.addConstraint(Sketcher.Constraint("Equal", 1, 2))
sketch12.addConstraint(Sketcher.Constraint("Equal", 2, 3))
sketch12.addConstraint(Sketcher.Constraint("Symmetric", 0, 3, 1, 3, -2))
sketch12.addConstraint(Sketcher.Constraint("Symmetric", 2, 3, 3, 3, -2))
sketch12.addConstraint(Sketcher.Constraint("Vertical", 0, 3, 2, 3))
sketch12.addConstraint(Sketcher.Constraint("Diameter", 0, Q("2.7 mm")))
sketch12.addConstraint(Sketcher.Constraint("DistanceX", -1, 1, 0, 3, Q("5.05 mm")))
sketch12.addConstraint(Sketcher.Constraint("DistanceY", 2, 3, 0, 3, Q("48.3 mm")))
sketch12.addConstraint(Sketcher.Constraint("DistanceY", -1, 1, 0, 3, Q("14.35 mm")))
sketch12.setExpression("Constraints[6]", "Params.sketch12_diameter")
pocket6 = body.newObject("PartDesign::Pocket", "Pocket005")
pocket6.Profile = sketch12
pocket6.setExpression("Length", "Params.pocket6_length")
pocket6.Reversed = True

sketch13 = body.newObject("Sketcher::SketchObject", "Sketch012")
sketch13.AttachmentSupport = (doc.getObject("XZ_Plane"), [""])
sketch13.MapMode = "FlatFace"
sketch13.AttachmentOffset = App.Placement(App.Vector(0, 0, -18), App.Rotation())
sketch13.addGeometry(Part.Circle(App.Vector(0, 0, 0), App.Vector(0, 0, 1), 47.5), False)
sketch13.addGeometry(Part.Circle(App.Vector(0, 0, 0), App.Vector(0, 0, 1), 45), False)
sketch13.addConstraint(Sketcher.Constraint("Coincident", 0, 3, -1, 1))
sketch13.addConstraint(Sketcher.Constraint("Coincident", 1, 3, -1, 1))
sketch13.addConstraint(Sketcher.Constraint("Diameter", 0, Q("95 mm")))
sketch13.addConstraint(Sketcher.Constraint("Diameter", 1, Q("90 mm")))
sketch13.setExpression("Constraints[2]", "Params.sketch13_diameter")
sketch13.setExpression("Constraints[3]", "Params.sketch13_diameter2")
pocket7 = body.newObject("PartDesign::Pocket", "Pocket006")
pocket7.Profile = sketch13
pocket7.setExpression("Length", "Params.pocket7_length")
pocket7.Reversed = True

sketch14 = body.newObject("Sketcher::SketchObject", "Sketch013")
sketch14.AttachmentSupport = (doc.getObject("XZ_Plane"), [""])
sketch14.MapMode = "FlatFace"
sketch14.AttachmentOffset = App.Placement(App.Vector(0, 0, -8), App.Rotation())
sketch14.addGeometry(Part.Circle(App.Vector(0, 0, 0), App.Vector(0, 0, 1), 47.5), False)
sketch14.addGeometry(Part.Circle(App.Vector(0, 0, 0), App.Vector(0, 0, 1), 45), False)
sketch14.addConstraint(Sketcher.Constraint("Coincident", 0, 3, -1, 1))
sketch14.addConstraint(Sketcher.Constraint("Coincident", 1, 3, -1, 1))
sketch14.addConstraint(Sketcher.Constraint("Diameter", 0, Q("95 mm")))
sketch14.addConstraint(Sketcher.Constraint("Diameter", 1, Q("90 mm")))
sketch14.setExpression("Constraints[2]", "Params.sketch14_diameter")
sketch14.setExpression("Constraints[3]", "Params.sketch14_diameter2")
pad7 = body.newObject("PartDesign::Pad", "Pad006")
pad7.Profile = sketch14
pad7.setExpression("Length", "Params.pad7_length")
pad7.Reversed = True

sketch15 = body.newObject("Sketcher::SketchObject", "Sketch014")
sketch15.AttachmentSupport = (doc.getObject("XZ_Plane"), [""])
sketch15.MapMode = "FlatFace"
sketch15.AttachmentOffset = App.Placement(App.Vector(0, 0, -50.5), App.Rotation())
sketch15.addGeometry(Part.Circle(App.Vector(0, 0, 0), App.Vector(0, 0, 1), 47.5), False)
sketch15.addGeometry(Part.Circle(App.Vector(0, 0, 0), App.Vector(0, 0, 1), 45), False)
sketch15.addConstraint(Sketcher.Constraint("Coincident", 0, 3, -1, 1))
sketch15.addConstraint(Sketcher.Constraint("Coincident", 1, 3, -1, 1))
sketch15.addConstraint(Sketcher.Constraint("Diameter", 0, Q("95 mm")))
sketch15.addConstraint(Sketcher.Constraint("Diameter", 1, Q("90 mm")))
sketch15.setExpression("Constraints[2]", "Params.sketch15_diameter")
sketch15.setExpression("Constraints[3]", "Params.sketch15_diameter2")
pocket8 = body.newObject("PartDesign::Pocket", "Pocket007")
pocket8.Profile = sketch15
pocket8.setExpression("Length", "Params.pocket8_length")
pocket8.Reversed = True

sketch16 = body.newObject("Sketcher::SketchObject", "Sketch015")
sketch16.AttachmentSupport = (doc.getObject("XZ_Plane"), [""])
sketch16.MapMode = "FlatFace"
sketch16.addGeometry(Part.Circle(App.Vector(0, 0, 0), App.Vector(0, 0, 1), 47.5), False)
sketch16.addGeometry(Part.Circle(App.Vector(0, 0, 0), App.Vector(0, 0, 1), 45), False)
sketch16.addConstraint(Sketcher.Constraint("Coincident", 0, 3, -1, 1))
sketch16.addConstraint(Sketcher.Constraint("Coincident", 1, 3, -1, 1))
sketch16.addConstraint(Sketcher.Constraint("Diameter", 0, Q("95 mm")))
sketch16.addConstraint(Sketcher.Constraint("Diameter", 1, Q("90 mm")))
sketch16.setExpression("Constraints[2]", "Params.sketch16_diameter")
sketch16.setExpression("Constraints[3]", "Params.sketch16_diameter2")
pad8 = body.newObject("PartDesign::Pad", "Pad007")
pad8.Profile = sketch16
pad8.setExpression("Length", "Params.pad8_length")
pad8.Reversed = True

sketch17 = body.newObject("Sketcher::SketchObject", "Sketch016")
sketch17.AttachmentSupport = (doc.getObject("XZ_Plane"), [""])
sketch17.MapMode = "FlatFace"
sketch17.AttachmentOffset = App.Placement(App.Vector(0, 0, -8), App.Rotation())
sketch17.addGeometry(Part.Circle(App.Vector(0, 0, 0), App.Vector(0, 0, 1), 47.5), False)
sketch17.addGeometry(Part.Circle(App.Vector(0, 0, 0), App.Vector(0, 0, 1), 45), False)
sketch17.addConstraint(Sketcher.Constraint("Coincident", 0, 3, -1, 1))
sketch17.addConstraint(Sketcher.Constraint("Coincident", 1, 3, -1, 1))
sketch17.addConstraint(Sketcher.Constraint("Diameter", 0, Q("95 mm")))
sketch17.addConstraint(Sketcher.Constraint("Diameter", 1, Q("90 mm")))
sketch17.setExpression("Constraints[2]", "Params.sketch17_diameter")
sketch17.setExpression("Constraints[3]", "Params.sketch17_diameter2")
pad9 = body.newObject("PartDesign::Pad", "Pad008")
pad9.Profile = sketch17
pad9.setExpression("Length", "Params.pad9_length")
pad9.Reversed = True

doc.recompute()
